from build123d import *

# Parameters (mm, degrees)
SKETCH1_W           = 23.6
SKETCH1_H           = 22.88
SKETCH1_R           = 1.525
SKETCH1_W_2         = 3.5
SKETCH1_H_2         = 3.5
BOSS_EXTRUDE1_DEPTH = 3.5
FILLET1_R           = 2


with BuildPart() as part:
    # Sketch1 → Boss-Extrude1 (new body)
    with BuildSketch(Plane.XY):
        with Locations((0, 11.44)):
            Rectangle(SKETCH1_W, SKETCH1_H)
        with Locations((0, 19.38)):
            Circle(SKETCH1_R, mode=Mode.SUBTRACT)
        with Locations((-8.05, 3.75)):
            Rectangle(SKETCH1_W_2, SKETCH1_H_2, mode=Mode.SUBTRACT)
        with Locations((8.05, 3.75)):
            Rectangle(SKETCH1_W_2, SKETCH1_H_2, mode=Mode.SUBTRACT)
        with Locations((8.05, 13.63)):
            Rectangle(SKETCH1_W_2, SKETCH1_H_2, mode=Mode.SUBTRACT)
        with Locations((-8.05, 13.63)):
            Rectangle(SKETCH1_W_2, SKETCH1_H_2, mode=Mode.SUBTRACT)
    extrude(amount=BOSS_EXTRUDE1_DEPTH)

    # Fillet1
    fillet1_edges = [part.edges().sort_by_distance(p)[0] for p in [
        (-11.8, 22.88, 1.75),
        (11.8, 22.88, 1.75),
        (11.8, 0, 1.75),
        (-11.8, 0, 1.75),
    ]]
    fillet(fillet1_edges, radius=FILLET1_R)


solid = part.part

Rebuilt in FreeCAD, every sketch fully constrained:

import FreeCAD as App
import Part
import Sketcher

V = App.Vector


def edges_at(feature, points):
    """Names of the edges that pass closest to the given points."""
    edges = feature.Shape.Edges
    near = lambda p: min(range(len(edges)), key=lambda i: edges[i].distToShape(Part.Vertex(*p))[0])
    return sorted({f"Edge{near(p) + 1}" for p in points})


def add_polygon(sketch, points):
    """Adds a closed chain of lines whose ends are joined by coincident constraints."""
    first, n = sketch.GeometryCount, len(points)
    for a, b in zip(points, points[1:] + points[:1]):
        sketch.addGeometry(Part.LineSegment(App.Vector(*a, 0), App.Vector(*b, 0)), False)
    for i in range(n):
        sketch.addConstraint(Sketcher.Constraint("Coincident", first + i, 2, first + (i + 1) % n, 1))

doc = App.newDocument("Part")
body = doc.addObject("PartDesign::Body", "Body")

# Sketch on XY plane
sketch1 = body.newObject("Sketcher::SketchObject", "Sketch")
sketch1.AttachmentSupport = (doc.getObject("XY_Plane"), [""])
sketch1.MapMode = "FlatFace"
add_polygon(sketch1, [(-11.8, 22.9), (-11.8, 0), (11.8, 0), (11.8, 22.9)])  # lines 0-3
add_polygon(sketch1, [(-6.3, 2), (-9.8, 2), (-9.8, 5.5), (-6.3, 5.5)])  # lines 4-7
add_polygon(sketch1, [(9.8, 2), (6.3, 2), (6.3, 5.5), (9.8, 5.5)])  # lines 8-11
add_polygon(sketch1, [(-6.3, 11.9), (-9.8, 11.9), (-9.8, 15.4), (-6.3, 15.4)])  # lines 12-15
add_polygon(sketch1, [(9.8, 11.9), (6.3, 11.9), (6.3, 15.4), (9.8, 15.4)])  # lines 16-19
sketch1.addGeometry(Part.Circle(V(0, 19.4, 0), V(0, 0, 1), 1.5), False)  # 20
sketch1.addConstraint([
    Sketcher.Constraint("Vertical", 0),
    Sketcher.Constraint("Horizontal", 1),
    Sketcher.Constraint("Vertical", 2),
    Sketcher.Constraint("Horizontal", 3),
    Sketcher.Constraint("Horizontal", 4),
    Sketcher.Constraint("Vertical", 5),
    Sketcher.Constraint("Horizontal", 6),
    Sketcher.Constraint("Vertical", 7),
    Sketcher.Constraint("Horizontal", 8),
    Sketcher.Constraint("Vertical", 9),
    Sketcher.Constraint("Horizontal", 10),
    Sketcher.Constraint("Vertical", 11),
    Sketcher.Constraint("Horizontal", 12),
    Sketcher.Constraint("Vertical", 13),
    Sketcher.Constraint("Horizontal", 14),
    Sketcher.Constraint("Vertical", 15),
    Sketcher.Constraint("Horizontal", 16),
    Sketcher.Constraint("Vertical", 17),
    Sketcher.Constraint("Horizontal", 18),
    Sketcher.Constraint("Vertical", 19),
    Sketcher.Constraint("Symmetric", 0, 2, 1, 2, -1, 1),
    Sketcher.Constraint("Symmetric", 7, 2, 8, 2, -2),
    Sketcher.Constraint("Symmetric", 5, 2, 10, 2, -2),
    Sketcher.Constraint("Symmetric", 15, 2, 16, 2, -2),
    Sketcher.Constraint("Symmetric", 13, 2, 18, 2, -2),
    Sketcher.Constraint("PointOnObject", 20, 3, -2),
    Sketcher.Constraint("Vertical", 5, 2, 12, 2),
    Sketcher.Constraint("Vertical", 7, 2, 14, 2),
    Sketcher.Constraint("Equal", 18, 5),
    Sketcher.Constraint("Equal", 11, 13),
    Sketcher.Constraint("Diameter", 20, 3.05),
    Sketcher.Constraint("DistanceX", 1, 1, 1, 2, 23.6),
    Sketcher.Constraint("DistanceX", 4, 2, 4, 1, 3.5),
    Sketcher.Constraint("DistanceY", -1, 1, 4, 2, 2.0),
    Sketcher.Constraint("DistanceX", 0, 2, 4, 2, 2.0),
    Sketcher.Constraint("DistanceY", 12, 2, 3, 2, 11.0),
    Sketcher.Constraint("DistanceY", 13, 2, 20, 3, 4.0),
    Sketcher.Constraint("DistanceY", 0, 2, 0, 1, 22.88),
])
pad1 = body.newObject("PartDesign::Pad", "Pad")
pad1.Profile = sketch1
pad1.Length = 3.5
doc.recompute()

fillet = body.newObject("PartDesign::Fillet", "Fillet")
fillet.Base = (pad1, edges_at(pad1, [
    (-11.8, 22.88, 1.75),
    (11.8, 22.88, 1.75),
    (11.8, 0, 1.75),
    (-11.8, 0, 1.75),
]))
fillet.Radius = 2

doc.recompute()
